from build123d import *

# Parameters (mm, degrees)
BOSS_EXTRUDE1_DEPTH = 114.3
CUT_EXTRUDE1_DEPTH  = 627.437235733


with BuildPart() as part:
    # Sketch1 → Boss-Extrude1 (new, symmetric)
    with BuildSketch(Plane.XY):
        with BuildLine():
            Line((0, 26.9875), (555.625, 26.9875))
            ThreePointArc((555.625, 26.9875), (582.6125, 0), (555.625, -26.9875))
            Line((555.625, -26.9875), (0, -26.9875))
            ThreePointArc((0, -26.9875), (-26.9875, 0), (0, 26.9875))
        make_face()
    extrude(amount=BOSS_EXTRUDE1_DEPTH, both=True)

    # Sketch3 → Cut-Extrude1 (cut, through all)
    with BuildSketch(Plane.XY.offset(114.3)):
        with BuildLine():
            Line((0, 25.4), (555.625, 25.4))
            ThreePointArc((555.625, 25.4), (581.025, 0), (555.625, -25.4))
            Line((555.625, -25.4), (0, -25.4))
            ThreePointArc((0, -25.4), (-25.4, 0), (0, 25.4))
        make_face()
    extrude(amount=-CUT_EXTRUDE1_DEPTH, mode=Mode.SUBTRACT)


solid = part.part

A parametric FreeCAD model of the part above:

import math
import FreeCAD as App
import Part
import Sketcher

V = App.Vector
Q = App.Units.Quantity

doc = App.newDocument("Part")
body = doc.addObject("PartDesign::Body", "Body")

# Sketch on XY plane
sketch1 = body.newObject("Sketcher::SketchObject", "Sketch")
sketch1.AttachmentSupport = (doc.getObject("XY_Plane"), [""])
sketch1.MapMode = "FlatFace"
sketch1.addGeometry([
    Part.LineSegment(V(555.625, 26.9875, 0), V(0, 26.9875, 0)),
    Part.ArcOfCircle(Part.Circle(V(0, 0, 0), V(0, 0, 1), 26.9875), math.radians(90), math.radians(270)),
    Part.LineSegment(V(0, -26.9875, 0), V(555.625, -26.9875, 0)),
    Part.ArcOfCircle(Part.Circle(V(555.625, 0, 0), V(0, 0, 1), 26.9875), math.radians(-90), math.radians(90)),
], False)
sketch1.addConstraint([
    Sketcher.Constraint("Tangent", 0, 2, 1, 1),
    Sketcher.Constraint("Tangent", 1, 2, 2, 1),
    Sketcher.Constraint("Tangent", 2, 2, 3, 1),
    Sketcher.Constraint("Tangent", 3, 2, 0, 1),
    Sketcher.Constraint("Horizontal", 0),
    Sketcher.Constraint("Horizontal", 2),
    Sketcher.Constraint("Coincident", 1, 3, -1, 1),
    Sketcher.Constraint("Radius", 1, Q("1.0625 in")),
    Sketcher.Constraint("DistanceX", 0, 2, 0, 1, Q("21.875 in")),
])
pad1 = body.newObject("PartDesign::Pad", "Pad")
pad1.Profile = sketch1
pad1.Length = Q("9 in")
pad1.Midplane = True

# Sketch on XY plane
sketch2 = body.newObject("Sketcher::SketchObject", "Sketch001")
sketch2.AttachmentSupport = (doc.getObject("XY_Plane"), [""])
sketch2.MapMode = "FlatFace"
sketch2.AttachmentOffset = App.Placement(V(0, 0, 4.5 * 25.4), App.Rotation())
sketch2.addGeometry([
    Part.LineSegment(V(555.625, 25.4, 0), V(0, 25.4, 0)),
    Part.ArcOfCircle(Part.Circle(V(0, 0, 0), V(0, 0, 1), 25.4), math.radians(90), math.radians(270)),
    Part.LineSegment(V(0, -25.4, 0), V(555.625, -25.4, 0)),
    Part.ArcOfCircle(Part.Circle(V(555.625, 0, 0), V(0, 0, 1), 25.4), math.radians(-90), math.radians(90)),
], False)
sketch2.addConstraint([
    Sketcher.Constraint("Tangent", 0, 2, 1, 1),
    Sketcher.Constraint("Tangent", 1, 2, 2, 1),
    Sketcher.Constraint("Tangent", 2, 2, 3, 1),
    Sketcher.Constraint("Tangent", 3, 2, 0, 1),
    Sketcher.Constraint("Horizontal", 0),
    Sketcher.Constraint("Horizontal", 2),
    Sketcher.Constraint("Coincident", 1, 3, -1, 1),
    Sketcher.Constraint("Radius", 1, Q("1 in")),
    Sketcher.Constraint("DistanceX", 0, 2, 0, 1, Q("21.875 in")),
])
pocket1 = body.newObject("PartDesign::Pocket", "Pocket")
pocket1.Profile = sketch2
pocket1.Type = "ThroughAll"

doc.recompute()
